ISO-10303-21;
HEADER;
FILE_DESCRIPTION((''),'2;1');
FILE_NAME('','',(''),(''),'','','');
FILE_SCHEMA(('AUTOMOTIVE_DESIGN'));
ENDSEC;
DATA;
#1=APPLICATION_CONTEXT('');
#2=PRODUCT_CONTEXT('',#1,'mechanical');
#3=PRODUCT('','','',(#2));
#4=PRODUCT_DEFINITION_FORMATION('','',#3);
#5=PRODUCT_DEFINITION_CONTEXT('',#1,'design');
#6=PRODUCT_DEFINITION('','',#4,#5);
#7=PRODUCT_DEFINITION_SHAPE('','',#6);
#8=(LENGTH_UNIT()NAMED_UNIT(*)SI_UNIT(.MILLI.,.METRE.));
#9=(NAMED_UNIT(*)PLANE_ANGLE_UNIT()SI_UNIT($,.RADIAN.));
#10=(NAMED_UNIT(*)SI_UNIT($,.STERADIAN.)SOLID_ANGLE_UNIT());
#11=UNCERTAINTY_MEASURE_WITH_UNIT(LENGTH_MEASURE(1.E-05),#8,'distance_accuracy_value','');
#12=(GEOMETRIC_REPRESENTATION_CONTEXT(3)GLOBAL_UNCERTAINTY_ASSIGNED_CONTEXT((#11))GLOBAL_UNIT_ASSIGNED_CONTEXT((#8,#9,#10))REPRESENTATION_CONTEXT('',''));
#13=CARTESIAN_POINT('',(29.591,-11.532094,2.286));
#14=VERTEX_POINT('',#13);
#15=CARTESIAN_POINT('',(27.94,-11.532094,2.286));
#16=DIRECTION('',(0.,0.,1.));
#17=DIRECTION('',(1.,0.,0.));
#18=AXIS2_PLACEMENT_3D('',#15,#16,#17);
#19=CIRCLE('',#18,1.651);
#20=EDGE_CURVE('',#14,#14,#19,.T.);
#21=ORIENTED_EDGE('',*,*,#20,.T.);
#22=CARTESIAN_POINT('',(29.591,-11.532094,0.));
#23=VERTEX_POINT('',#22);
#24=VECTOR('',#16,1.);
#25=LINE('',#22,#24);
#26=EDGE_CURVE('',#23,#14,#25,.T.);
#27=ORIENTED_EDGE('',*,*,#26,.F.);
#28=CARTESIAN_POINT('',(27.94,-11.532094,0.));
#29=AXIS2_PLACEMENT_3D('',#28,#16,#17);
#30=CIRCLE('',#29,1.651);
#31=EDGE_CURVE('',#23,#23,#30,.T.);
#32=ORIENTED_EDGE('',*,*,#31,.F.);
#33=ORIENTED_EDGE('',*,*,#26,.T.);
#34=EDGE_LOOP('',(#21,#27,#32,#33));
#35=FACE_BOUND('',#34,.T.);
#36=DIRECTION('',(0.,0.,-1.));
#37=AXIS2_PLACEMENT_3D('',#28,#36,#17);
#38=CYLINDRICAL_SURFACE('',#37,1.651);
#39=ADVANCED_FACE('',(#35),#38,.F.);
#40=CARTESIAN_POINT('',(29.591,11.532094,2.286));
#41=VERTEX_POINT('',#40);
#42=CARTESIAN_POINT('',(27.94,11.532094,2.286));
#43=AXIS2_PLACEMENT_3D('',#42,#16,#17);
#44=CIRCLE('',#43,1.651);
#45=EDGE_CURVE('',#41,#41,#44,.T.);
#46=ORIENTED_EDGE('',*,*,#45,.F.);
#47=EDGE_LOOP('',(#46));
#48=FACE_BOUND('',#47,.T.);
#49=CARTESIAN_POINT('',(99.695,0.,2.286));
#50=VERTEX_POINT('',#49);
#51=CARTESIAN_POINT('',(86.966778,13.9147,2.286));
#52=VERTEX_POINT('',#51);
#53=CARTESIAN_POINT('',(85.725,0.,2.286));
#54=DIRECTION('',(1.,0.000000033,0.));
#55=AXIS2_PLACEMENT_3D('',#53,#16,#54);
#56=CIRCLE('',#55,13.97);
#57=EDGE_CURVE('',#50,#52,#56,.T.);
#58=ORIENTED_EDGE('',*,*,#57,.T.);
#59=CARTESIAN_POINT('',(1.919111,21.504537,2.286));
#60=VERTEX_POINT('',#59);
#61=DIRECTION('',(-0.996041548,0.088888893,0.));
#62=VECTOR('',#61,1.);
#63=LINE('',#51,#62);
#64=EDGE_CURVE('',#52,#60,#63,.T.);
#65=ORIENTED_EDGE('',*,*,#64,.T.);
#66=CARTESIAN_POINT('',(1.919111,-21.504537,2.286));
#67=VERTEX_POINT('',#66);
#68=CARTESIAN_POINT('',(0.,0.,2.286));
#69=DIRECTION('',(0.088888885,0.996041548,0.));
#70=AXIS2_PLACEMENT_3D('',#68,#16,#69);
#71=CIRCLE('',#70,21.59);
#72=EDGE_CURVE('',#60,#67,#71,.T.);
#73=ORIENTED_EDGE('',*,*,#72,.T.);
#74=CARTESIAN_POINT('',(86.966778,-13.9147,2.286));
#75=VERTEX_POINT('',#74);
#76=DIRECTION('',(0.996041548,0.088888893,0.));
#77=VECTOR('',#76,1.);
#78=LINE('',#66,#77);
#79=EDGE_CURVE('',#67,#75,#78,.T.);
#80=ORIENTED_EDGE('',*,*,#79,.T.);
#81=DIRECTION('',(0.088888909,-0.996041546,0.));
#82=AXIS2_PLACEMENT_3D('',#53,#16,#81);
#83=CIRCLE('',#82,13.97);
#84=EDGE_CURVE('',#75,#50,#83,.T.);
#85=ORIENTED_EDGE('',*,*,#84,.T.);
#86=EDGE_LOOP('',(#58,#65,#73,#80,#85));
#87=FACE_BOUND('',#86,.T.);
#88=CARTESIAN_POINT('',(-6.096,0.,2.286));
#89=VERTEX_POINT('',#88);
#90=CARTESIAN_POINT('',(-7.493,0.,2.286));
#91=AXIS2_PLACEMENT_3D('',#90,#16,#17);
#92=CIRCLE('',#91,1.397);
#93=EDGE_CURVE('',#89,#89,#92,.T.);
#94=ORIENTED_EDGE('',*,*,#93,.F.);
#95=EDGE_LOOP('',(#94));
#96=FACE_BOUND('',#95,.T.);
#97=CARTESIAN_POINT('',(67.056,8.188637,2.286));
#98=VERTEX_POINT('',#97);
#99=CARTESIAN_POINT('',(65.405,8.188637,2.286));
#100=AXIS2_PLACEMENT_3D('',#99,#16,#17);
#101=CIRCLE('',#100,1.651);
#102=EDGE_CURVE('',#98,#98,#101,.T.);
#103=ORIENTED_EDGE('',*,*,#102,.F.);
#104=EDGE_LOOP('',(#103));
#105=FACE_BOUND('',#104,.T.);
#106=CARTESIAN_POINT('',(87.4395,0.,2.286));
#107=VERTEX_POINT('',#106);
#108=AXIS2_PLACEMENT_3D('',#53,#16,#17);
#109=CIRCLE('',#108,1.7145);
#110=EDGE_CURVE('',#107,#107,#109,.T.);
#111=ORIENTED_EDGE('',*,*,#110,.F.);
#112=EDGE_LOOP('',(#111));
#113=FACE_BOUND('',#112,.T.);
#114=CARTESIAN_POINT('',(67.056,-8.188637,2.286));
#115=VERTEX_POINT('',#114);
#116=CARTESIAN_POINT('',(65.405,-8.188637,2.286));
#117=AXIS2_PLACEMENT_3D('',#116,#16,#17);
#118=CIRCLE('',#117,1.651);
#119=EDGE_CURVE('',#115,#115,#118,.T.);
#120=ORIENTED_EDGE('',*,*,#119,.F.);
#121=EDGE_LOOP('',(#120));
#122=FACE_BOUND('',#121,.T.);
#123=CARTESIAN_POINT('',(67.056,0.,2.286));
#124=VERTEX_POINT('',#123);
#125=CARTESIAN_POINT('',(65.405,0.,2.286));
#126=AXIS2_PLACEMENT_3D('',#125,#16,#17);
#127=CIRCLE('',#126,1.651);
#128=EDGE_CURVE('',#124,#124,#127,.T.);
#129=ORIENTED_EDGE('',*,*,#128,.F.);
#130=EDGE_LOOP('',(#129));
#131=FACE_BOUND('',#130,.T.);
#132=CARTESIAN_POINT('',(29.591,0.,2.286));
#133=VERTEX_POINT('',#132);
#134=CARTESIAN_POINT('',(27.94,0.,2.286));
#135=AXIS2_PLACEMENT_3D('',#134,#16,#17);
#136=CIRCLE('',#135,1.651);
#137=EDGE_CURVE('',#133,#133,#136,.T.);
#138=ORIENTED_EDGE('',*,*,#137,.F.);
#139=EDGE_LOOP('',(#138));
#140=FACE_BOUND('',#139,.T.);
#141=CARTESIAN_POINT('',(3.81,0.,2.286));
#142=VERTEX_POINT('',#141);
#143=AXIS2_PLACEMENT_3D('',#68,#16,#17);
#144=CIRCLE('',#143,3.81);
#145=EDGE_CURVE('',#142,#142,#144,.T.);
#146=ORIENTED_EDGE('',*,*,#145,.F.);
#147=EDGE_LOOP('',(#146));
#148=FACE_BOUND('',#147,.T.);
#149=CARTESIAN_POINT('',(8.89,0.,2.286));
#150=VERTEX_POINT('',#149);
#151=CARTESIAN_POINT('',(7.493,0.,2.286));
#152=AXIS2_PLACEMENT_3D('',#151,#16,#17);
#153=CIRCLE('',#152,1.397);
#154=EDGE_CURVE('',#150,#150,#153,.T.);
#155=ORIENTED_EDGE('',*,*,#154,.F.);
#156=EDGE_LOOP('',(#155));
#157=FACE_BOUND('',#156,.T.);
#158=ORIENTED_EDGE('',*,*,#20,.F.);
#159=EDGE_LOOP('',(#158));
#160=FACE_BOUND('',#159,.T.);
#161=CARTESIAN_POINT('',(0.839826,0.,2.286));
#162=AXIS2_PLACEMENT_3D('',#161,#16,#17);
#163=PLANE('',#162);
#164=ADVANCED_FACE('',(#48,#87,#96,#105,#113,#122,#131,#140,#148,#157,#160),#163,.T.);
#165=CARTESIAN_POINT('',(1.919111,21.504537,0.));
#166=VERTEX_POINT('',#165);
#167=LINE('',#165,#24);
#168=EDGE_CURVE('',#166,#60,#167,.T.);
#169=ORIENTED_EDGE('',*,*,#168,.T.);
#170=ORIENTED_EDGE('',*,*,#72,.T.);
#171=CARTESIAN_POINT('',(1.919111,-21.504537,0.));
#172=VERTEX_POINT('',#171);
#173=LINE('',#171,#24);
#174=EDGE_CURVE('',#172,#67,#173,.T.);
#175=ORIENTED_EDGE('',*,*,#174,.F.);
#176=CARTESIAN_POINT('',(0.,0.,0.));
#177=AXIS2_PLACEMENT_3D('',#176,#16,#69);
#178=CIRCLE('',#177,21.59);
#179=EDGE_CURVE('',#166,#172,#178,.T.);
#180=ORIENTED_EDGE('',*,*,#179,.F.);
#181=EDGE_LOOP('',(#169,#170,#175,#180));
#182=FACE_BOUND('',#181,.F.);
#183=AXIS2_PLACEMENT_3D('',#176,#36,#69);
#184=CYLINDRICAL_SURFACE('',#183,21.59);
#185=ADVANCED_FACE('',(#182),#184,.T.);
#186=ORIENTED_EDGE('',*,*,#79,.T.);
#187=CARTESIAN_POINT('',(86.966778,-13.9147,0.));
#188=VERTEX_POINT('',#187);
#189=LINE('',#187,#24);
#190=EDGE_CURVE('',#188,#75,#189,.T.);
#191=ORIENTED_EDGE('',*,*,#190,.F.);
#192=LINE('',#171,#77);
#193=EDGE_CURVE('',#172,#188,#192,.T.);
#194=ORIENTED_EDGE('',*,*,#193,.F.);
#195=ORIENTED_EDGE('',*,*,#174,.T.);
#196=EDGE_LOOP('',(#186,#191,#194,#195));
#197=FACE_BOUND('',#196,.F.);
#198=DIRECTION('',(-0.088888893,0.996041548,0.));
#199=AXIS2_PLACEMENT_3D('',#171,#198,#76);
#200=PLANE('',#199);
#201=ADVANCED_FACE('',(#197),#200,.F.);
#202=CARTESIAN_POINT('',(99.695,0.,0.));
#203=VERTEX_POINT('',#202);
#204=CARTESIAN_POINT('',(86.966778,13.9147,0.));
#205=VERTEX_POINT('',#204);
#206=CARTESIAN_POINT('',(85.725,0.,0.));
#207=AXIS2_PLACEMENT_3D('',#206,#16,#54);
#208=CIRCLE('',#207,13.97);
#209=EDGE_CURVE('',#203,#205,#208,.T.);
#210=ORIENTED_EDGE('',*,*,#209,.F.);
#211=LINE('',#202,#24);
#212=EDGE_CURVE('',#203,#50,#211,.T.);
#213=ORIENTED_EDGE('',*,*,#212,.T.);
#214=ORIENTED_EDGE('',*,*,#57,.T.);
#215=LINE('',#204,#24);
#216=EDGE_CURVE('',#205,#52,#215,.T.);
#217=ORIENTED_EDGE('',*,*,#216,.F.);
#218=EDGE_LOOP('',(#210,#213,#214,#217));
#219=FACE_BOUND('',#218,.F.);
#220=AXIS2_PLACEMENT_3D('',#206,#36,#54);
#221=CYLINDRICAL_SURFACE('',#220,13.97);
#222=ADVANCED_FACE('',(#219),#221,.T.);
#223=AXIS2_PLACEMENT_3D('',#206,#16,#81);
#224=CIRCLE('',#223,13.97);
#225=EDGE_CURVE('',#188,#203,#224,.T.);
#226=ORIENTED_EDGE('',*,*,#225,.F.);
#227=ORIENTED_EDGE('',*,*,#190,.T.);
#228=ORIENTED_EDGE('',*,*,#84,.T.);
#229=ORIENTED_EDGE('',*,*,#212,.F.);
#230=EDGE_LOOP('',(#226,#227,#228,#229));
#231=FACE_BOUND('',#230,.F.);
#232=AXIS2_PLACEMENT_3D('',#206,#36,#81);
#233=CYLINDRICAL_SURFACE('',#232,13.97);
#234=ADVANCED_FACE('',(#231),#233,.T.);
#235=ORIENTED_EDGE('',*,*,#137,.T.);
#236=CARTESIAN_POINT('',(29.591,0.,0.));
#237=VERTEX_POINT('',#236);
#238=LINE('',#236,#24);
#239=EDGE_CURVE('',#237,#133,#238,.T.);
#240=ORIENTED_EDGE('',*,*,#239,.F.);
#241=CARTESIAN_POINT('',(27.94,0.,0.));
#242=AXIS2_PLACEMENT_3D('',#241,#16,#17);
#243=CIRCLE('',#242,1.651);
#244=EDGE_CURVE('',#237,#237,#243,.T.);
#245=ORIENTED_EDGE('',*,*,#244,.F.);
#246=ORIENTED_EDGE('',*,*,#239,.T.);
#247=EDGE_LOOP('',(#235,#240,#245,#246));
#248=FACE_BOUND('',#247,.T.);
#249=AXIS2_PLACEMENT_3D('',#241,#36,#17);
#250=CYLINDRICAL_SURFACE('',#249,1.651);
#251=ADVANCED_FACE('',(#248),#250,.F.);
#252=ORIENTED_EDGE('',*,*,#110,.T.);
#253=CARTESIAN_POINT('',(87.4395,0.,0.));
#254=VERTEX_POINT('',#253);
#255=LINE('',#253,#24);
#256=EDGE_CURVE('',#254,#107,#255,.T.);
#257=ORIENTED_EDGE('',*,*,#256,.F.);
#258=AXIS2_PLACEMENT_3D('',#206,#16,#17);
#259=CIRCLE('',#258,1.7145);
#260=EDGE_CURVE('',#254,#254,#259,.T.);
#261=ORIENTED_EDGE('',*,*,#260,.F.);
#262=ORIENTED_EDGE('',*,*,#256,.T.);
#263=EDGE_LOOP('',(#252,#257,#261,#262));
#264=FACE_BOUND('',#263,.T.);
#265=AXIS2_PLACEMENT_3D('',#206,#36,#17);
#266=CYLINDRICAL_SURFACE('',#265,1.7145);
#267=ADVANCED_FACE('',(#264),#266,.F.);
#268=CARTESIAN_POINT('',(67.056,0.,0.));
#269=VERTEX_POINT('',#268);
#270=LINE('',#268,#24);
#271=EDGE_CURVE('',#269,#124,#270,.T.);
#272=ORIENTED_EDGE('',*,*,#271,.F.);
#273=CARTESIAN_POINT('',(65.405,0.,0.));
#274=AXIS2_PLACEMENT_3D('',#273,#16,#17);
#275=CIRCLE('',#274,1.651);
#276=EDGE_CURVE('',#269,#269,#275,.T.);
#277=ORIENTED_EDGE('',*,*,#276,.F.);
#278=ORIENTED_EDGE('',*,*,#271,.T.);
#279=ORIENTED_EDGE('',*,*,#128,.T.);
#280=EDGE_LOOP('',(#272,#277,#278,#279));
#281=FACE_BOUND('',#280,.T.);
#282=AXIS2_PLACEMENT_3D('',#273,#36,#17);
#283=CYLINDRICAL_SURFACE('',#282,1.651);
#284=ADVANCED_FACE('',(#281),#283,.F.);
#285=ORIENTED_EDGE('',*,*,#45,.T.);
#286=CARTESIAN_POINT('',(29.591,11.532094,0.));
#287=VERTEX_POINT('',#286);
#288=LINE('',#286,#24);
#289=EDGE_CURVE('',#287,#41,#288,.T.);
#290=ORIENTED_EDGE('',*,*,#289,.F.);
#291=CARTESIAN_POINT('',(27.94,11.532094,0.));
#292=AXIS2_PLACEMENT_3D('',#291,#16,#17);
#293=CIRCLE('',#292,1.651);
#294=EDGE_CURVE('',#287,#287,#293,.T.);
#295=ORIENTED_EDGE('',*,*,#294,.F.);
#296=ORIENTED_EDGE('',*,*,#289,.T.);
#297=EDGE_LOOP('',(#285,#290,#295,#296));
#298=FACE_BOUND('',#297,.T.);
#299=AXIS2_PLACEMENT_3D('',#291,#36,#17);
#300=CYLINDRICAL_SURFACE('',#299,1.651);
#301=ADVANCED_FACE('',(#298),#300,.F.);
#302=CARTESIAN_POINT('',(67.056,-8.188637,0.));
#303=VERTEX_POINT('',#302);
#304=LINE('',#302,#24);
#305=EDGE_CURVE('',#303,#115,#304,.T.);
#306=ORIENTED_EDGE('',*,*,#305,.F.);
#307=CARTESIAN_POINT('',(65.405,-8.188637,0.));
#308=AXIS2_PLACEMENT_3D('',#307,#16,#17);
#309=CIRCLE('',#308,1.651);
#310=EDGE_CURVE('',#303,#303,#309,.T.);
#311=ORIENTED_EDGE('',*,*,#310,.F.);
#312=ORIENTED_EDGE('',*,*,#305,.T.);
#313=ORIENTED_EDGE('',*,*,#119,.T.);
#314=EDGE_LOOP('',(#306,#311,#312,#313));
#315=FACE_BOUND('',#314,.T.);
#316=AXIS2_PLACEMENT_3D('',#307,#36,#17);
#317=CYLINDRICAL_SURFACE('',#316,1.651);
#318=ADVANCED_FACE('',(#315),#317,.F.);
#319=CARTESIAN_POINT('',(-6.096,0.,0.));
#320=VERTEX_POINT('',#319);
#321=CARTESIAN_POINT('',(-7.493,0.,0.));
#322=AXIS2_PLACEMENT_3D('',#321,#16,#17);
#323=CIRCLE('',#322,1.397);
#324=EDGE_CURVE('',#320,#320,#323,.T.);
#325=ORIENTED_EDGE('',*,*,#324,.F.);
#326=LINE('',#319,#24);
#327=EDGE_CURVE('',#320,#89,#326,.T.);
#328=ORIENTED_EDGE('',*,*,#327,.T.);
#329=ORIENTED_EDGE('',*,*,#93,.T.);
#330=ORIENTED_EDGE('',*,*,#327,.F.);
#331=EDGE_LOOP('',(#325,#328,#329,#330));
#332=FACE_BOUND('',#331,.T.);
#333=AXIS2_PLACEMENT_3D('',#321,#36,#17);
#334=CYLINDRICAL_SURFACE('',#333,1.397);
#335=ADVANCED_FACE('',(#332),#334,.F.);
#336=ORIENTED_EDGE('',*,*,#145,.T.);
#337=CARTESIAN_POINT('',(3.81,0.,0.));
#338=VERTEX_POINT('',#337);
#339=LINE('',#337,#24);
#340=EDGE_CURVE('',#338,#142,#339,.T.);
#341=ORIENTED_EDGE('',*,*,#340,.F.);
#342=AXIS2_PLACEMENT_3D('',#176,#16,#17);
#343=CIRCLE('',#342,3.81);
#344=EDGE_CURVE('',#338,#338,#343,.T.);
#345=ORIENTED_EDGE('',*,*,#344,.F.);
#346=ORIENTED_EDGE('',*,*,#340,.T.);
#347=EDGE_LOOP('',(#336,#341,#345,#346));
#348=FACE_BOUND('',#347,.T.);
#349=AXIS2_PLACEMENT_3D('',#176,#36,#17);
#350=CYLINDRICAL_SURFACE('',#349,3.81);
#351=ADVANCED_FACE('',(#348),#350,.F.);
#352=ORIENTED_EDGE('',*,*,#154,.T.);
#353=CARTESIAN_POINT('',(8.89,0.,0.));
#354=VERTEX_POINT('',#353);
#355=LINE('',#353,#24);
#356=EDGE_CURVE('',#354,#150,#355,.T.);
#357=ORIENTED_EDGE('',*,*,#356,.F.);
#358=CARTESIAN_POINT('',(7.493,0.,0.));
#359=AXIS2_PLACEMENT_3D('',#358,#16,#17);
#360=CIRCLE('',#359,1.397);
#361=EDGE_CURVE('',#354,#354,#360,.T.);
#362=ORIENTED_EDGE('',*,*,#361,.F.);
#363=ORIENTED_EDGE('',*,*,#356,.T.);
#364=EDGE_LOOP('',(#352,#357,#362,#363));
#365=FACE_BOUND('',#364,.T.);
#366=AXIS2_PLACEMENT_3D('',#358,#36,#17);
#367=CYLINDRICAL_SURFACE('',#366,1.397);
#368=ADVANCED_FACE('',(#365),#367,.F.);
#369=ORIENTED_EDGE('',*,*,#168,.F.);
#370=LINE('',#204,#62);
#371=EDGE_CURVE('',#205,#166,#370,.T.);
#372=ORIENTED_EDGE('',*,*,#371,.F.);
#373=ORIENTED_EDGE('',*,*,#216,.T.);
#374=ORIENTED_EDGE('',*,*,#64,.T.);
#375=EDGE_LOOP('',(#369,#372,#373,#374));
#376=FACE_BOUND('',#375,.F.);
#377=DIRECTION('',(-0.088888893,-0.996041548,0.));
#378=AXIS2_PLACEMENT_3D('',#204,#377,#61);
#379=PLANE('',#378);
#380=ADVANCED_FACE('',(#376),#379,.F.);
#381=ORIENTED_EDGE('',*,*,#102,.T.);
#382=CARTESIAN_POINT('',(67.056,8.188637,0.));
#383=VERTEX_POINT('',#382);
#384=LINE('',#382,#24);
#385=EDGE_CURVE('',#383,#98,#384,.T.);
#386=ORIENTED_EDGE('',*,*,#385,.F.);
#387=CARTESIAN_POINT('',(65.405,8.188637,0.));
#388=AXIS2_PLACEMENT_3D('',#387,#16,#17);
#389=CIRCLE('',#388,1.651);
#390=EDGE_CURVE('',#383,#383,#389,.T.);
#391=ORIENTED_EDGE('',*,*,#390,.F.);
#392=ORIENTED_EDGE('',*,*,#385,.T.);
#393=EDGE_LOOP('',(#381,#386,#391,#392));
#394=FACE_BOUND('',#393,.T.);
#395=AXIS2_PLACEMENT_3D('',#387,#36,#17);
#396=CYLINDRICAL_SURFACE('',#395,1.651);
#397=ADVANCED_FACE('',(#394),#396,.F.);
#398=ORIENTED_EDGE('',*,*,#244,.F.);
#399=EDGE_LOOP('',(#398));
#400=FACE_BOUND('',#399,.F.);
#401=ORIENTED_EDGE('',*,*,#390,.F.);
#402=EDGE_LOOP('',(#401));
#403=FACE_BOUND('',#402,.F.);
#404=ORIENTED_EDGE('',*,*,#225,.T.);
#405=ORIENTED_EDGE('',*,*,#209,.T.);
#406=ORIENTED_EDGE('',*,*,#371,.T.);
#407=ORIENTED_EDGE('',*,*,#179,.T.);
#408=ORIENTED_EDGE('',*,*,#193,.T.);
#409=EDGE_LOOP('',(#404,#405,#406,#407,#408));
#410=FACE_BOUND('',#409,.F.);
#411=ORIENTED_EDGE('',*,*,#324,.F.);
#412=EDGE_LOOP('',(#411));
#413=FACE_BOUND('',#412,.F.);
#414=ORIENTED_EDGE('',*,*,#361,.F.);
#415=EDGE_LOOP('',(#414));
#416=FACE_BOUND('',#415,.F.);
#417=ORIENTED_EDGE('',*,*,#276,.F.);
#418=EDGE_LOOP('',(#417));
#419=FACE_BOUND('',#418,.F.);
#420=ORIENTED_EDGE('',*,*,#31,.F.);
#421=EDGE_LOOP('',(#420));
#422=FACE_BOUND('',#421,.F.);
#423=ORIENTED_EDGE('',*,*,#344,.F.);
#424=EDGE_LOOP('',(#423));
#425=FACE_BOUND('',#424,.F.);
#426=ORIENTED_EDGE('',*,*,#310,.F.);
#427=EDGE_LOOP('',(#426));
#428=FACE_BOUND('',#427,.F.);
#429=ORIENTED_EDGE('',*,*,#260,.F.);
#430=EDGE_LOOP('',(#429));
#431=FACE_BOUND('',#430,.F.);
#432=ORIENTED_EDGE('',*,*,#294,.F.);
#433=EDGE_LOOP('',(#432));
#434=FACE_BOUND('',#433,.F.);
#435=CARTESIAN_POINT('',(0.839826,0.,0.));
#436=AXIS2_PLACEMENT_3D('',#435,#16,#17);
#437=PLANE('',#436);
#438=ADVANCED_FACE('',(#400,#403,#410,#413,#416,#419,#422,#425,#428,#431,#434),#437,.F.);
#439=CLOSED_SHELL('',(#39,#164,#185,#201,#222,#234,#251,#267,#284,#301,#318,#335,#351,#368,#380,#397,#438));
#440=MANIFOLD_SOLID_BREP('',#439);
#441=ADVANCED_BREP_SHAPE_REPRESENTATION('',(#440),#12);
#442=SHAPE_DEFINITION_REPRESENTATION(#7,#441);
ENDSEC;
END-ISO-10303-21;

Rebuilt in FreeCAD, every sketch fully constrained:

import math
import FreeCAD as App
import Part
import Sketcher
from FreeCAD import Vector
Q = App.Units.Quantity

doc = App.newDocument("Part")
params = doc.addObject("Spreadsheet::Sheet", "Params")
for row, (alias, value) in enumerate([
    ("sketch1_diameter", "0.3 in"),
    ("sketch1_diameter2", "0.13 in"),
    ("sketch1_diameter3", "0.11 in"),
    ("sketch1_radius", "0.85 in"),
    ("sketch1_radius2", "0.55 in"),
    ("pad1_length", "0.09 in"),
], start=1):
    params.set(f"A{row}", alias)
    params.set(f"B{row}", "=" + value)
    params.setAlias(f"B{row}", alias)

body = doc.addObject("PartDesign::Body", "Body")

# Sketch on XY plane
sketch1 = body.newObject("Sketcher::SketchObject", "Sketch")
sketch1.AttachmentSupport = (doc.getObject("XY_Plane"), [""])
sketch1.MapMode = "FlatFace"
sketch1.addGeometry([
    Part.ArcOfCircle(Part.Circle(Vector(0, 0, 0), Vector(0, 0, 1), 21.6), math.radians(85), math.radians(275)),  # 0
    Part.LineSegment(Vector(1.9, -21.5, 0), Vector(87, -13.9, 0)),  # 1
    Part.ArcOfCircle(Part.Circle(Vector(85.7, 0, 0), Vector(0, 0, 1), 14), math.radians(-85), math.radians(0)),  # 2
    Part.ArcOfCircle(Part.Circle(Vector(85.7, 0, 0), Vector(0, 0, 1), 14), math.radians(0), math.radians(85)),  # 3
    Part.LineSegment(Vector(87, 13.9, 0), Vector(1.9, 21.5, 0)),  # 4
    Part.Circle(Vector(27.9, -11.5, 0), Vector(0, 0, 1), 1.7),  # 5
    Part.Circle(Vector(65.4, -8.2, 0), Vector(0, 0, 1), 1.7),  # 6
    Part.Circle(Vector(-7.5, 0, 0), Vector(0, 0, 1), 1.4),  # 7
    Part.Circle(Vector(0, 0, 0), Vector(0, 0, 1), 3.8),  # 8
    Part.Circle(Vector(7.5, 0, 0), Vector(0, 0, 1), 1.4),  # 9
    Part.Circle(Vector(27.9, 0, 0), Vector(0, 0, 1), 1.7),  # 10
    Part.Circle(Vector(27.9, 11.5, 0), Vector(0, 0, 1), 1.7),  # 11
    Part.Circle(Vector(65.4, 0, 0), Vector(0, 0, 1), 1.7),  # 12
    Part.Circle(Vector(85.7, 0, 0), Vector(0, 0, 1), 1.7),  # 13
    Part.Circle(Vector(65.4, 8.2, 0), Vector(0, 0, 1), 1.7),  # 14
], False)
sketch1.addConstraint([
    Sketcher.Constraint("Tangent", 0, 2, 1, 1),
    Sketcher.Constraint("Tangent", 1, 2, 2, 1),
    Sketcher.Constraint("Tangent", 2, 2, 3, 1),
    Sketcher.Constraint("Tangent", 3, 2, 4, 1),
    Sketcher.Constraint("Tangent", 4, 2, 0, 1),
    Sketcher.Constraint("Coincident", 0, 3, -1, 1),
    Sketcher.Constraint("Coincident", 8, 3, -1, 1),
    Sketcher.Constraint("Coincident", 13, 3, 2, 3),
    Sketcher.Constraint("Equal", 2, 3),
    Sketcher.Constraint("Equal", 5, 6),
    Sketcher.Constraint("Equal", 7, 9),
    Sketcher.Constraint("Equal", 6, 10),
    Sketcher.Constraint("Equal", 10, 11),
    Sketcher.Constraint("Equal", 11, 12),
    Sketcher.Constraint("Equal", 12, 14),
    Sketcher.Constraint("Symmetric", 7, 3, 9, 3, -1, 1),
    Sketcher.Constraint("Symmetric", 5, 3, 11, 3, -1),
    Sketcher.Constraint("Symmetric", 6, 3, 14, 3, -1),
    Sketcher.Constraint("PointOnObject", 2, 3, -1),
    Sketcher.Constraint("PointOnObject", 7, 3, -1),
    Sketcher.Constraint("PointOnObject", 10, 3, -1),
    Sketcher.Constraint("PointOnObject", 12, 3, -1),
    Sketcher.Constraint("PointOnObject", 2, 2, -1),
    Sketcher.Constraint("Vertical", 5, 3, 10, 3),
    Sketcher.Constraint("Vertical", 6, 3, 12, 3),
    Sketcher.Constraint("Diameter", 8, Q("0.3 in")),
    Sketcher.Constraint("Diameter", 5, Q("0.13 in")),
    Sketcher.Constraint("Diameter", 7, Q("0.11 in")),
    Sketcher.Constraint("Radius", 0, Q("0.85 in")),
    Sketcher.Constraint("Radius", 2, Q("0.55 in")),
    Sketcher.Constraint("Diameter", 13, Q("0.135 in")),
    Sketcher.Constraint("DistanceX", -1, 1, 5, 3, Q("1.1 in")),
    Sketcher.Constraint("DistanceX", 6, 3, 3, 3, Q("0.8 in")),
    Sketcher.Constraint("DistanceX", 7, 3, 6, 3, Q("2.87 in")),
    Sketcher.Constraint("DistanceX", 7, 3, 9, 3, Q("0.59 in")),
    Sketcher.Constraint("DistanceY", 5, 3, 11, 3, 23.064188),
    Sketcher.Constraint("DistanceY", 6, 3, -1, 1, 8.188637),
])
sketch1.setExpression("Constraints[25]", "Params.sketch1_diameter")
sketch1.setExpression("Constraints[26]", "Params.sketch1_diameter2")
sketch1.setExpression("Constraints[27]", "Params.sketch1_diameter3")
sketch1.setExpression("Constraints[28]", "Params.sketch1_radius")
sketch1.setExpression("Constraints[29]", "Params.sketch1_radius2")
pad1 = body.newObject("PartDesign::Pad", "Pad")
pad1.Profile = sketch1
pad1.setExpression("Length", "Params.pad1_length")

doc.recompute()
